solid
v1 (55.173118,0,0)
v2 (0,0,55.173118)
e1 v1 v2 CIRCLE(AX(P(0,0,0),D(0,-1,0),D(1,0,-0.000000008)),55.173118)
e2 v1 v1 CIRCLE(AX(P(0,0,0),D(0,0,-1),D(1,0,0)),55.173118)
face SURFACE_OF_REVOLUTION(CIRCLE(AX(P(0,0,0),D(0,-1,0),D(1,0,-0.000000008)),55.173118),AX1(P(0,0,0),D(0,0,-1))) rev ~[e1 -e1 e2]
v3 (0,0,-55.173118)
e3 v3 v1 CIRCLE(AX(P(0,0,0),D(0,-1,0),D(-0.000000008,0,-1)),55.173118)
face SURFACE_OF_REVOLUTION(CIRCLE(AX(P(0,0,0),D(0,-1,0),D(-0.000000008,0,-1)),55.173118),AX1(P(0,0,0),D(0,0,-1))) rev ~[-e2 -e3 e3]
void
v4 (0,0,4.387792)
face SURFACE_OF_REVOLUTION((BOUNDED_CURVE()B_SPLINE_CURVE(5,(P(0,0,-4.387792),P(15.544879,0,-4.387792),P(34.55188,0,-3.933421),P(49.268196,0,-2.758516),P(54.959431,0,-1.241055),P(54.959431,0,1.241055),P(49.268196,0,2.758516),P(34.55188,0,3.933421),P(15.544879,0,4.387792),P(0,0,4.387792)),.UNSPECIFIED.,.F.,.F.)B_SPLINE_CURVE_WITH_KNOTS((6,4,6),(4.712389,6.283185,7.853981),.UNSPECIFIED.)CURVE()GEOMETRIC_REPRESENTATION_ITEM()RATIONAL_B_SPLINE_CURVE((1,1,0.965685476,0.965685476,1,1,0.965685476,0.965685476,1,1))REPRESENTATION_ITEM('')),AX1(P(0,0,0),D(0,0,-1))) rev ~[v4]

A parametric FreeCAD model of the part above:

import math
import FreeCAD as App
import Part
import Sketcher

V = App.Vector

doc = App.newDocument("Part")
body = doc.addObject("PartDesign::Body", "Body")

# Sketch on XZ plane
sketch1 = doc.addObject("Sketcher::SketchObject", "Sketch")
body.addObject(sketch1)
sketch1.AttachmentSupport = (doc.XZ_Plane, [""])
sketch1.MapMode = "FlatFace"
sketch1.addGeometry([
    Part.ArcOfCircle(Part.Circle(V(0, 0, 0), V(0, 0, 1), 55.173118), math.radians(-90), math.radians(0)),  # 0
    Part.ArcOfCircle(Part.Circle(V(0, 0, 0), V(0, 0, 1), 55.173118), math.radians(0), math.radians(90)),  # 1
    Part.LineSegment(V(0, 55.173118, 0), V(0, 4.387792, 0)),  # 2
    Part.BSplineCurve([V(0, -4.387792, 0), V(15.544879, -4.387792, 0), V(34.55188, -3.933421, 0), V(49.268196, -2.758516, 0), V(54.959431, -1.241055, 0), V(54.959431, 1.241055, 0), V(49.268196, 2.758516, 0), V(34.55188, 3.933421, 0), V(15.544879, 4.387792, 0), V(0, 4.387792, 0)], [6, 4, 6], [4.712389, 6.283185, 7.853981], False, 5, [1, 1, 0.965685476, 0.965685476, 1, 1, 0.965685476, 0.965685476, 1, 1], False),  # 3
    Part.LineSegment(V(0, -4.387792, 0), V(0, -55.173118, 0)),  # 4
], False)
sketch1.addConstraint([
    Sketcher.Constraint("Block", 3),
    Sketcher.Constraint("Tangent", 0, 2, 1, 1),
    Sketcher.Constraint("Coincident", 1, 2, 2, 1),
    Sketcher.Constraint("Coincident", 2, 2, 3, 2),
    Sketcher.Constraint("Coincident", 3, 1, 4, 1),
    Sketcher.Constraint("Coincident", 4, 2, 0, 1),
    Sketcher.Constraint("Vertical", 2),
    Sketcher.Constraint("Vertical", 4),
    Sketcher.Constraint("Coincident", 0, 3, -1, 1),
    Sketcher.Constraint("Equal", 0, 1),
    Sketcher.Constraint("PointOnObject", 0, 2, -1),
    Sketcher.Constraint("Radius", 0, 55.173118),
])
revolution = doc.addObject("PartDesign::Revolution", "Revolution")
body.addObject(revolution)
revolution.Profile = sketch1
revolution.ReferenceAxis = (sketch1, ["V_Axis"])
revolution.Angle = 360

doc.recompute()
